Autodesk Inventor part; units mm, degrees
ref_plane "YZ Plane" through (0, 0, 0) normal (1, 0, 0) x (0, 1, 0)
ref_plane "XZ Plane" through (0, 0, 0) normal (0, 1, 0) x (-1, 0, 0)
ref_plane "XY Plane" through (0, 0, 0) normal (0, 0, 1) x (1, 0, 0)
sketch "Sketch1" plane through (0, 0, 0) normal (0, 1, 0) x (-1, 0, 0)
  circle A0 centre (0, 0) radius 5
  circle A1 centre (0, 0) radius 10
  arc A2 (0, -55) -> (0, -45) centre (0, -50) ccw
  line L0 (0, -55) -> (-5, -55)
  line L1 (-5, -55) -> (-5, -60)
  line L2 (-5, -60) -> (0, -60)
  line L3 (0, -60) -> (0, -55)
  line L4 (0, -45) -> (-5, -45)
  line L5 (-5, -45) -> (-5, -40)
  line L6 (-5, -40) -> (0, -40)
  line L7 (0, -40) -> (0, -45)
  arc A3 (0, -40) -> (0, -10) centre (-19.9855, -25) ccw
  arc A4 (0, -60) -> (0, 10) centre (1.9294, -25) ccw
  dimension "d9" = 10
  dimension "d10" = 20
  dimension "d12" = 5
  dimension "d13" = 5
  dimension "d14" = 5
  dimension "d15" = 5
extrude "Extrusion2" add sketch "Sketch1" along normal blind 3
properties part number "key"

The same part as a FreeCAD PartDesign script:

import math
import FreeCAD as App
import Part
import Sketcher

V = App.Vector

doc = App.newDocument("Part")
params = doc.addObject("Spreadsheet::Sheet", "Params")
for row, (alias, value) in enumerate([
    ("sketch1_diameter", "10 mm"),
    ("sketch1_radius", "10 mm"),
    ("pad1_length", "3 mm"),
], start=1):
    params.set(f"A{row}", alias)
    params.set(f"B{row}", "=" + value)
    params.setAlias(f"B{row}", alias)

body = doc.addObject("PartDesign::Body", "Body")

sketch1 = doc.addObject("Sketcher::SketchObject", "Sketch")
body.addObject(sketch1)
sketch1.AttachmentSupport = (doc.XZ_Plane, [""])
sketch1.MapMode = "FlatFace"
sketch1.addGeometry([
    Part.ArcOfCircle(Part.Circle(V(0, 0, 0), V(0, 0, 1), 10), math.radians(-90), math.radians(90)),
    Part.ArcOfCircle(Part.Circle(V(20, -25, 0), V(0, 0, 1), 25), math.radians(143), math.radians(217)),
    Part.LineSegment(V(0, -40, 0), V(5, -40, 0)),
    Part.LineSegment(V(5, -40, 0), V(5, -45, 0)),
    Part.LineSegment(V(5, -45, 0), V(0, -45, 0)),
    Part.ArcOfCircle(Part.Circle(V(0, -50, 0), V(0, 0, 1), 5), math.radians(90), math.radians(270)),
    Part.LineSegment(V(0, -55, 0), V(5, -55, 0)),
    Part.LineSegment(V(5, -55, 0), V(5, -60, 0)),
    Part.LineSegment(V(5, -60, 0), V(0, -60, 0)),
    Part.ArcOfCircle(Part.Circle(V(-2, -25, 0), V(0, 0, 1), 35), math.radians(87), math.radians(273)),
    Part.Circle(V(0, 0, 0), V(0, 0, 1), 5),
], False)
sketch1.addConstraint([
    Sketcher.Constraint("Coincident", 0, 1, 1, 1),
    Sketcher.Constraint("Coincident", 1, 2, 2, 1),
    Sketcher.Constraint("Coincident", 2, 2, 3, 1),
    Sketcher.Constraint("Coincident", 3, 2, 4, 1),
    Sketcher.Constraint("Tangent", 4, 2, 5, 1),
    Sketcher.Constraint("Tangent", 5, 2, 6, 1),
    Sketcher.Constraint("Coincident", 6, 2, 7, 1),
    Sketcher.Constraint("Coincident", 7, 2, 8, 1),
    Sketcher.Constraint("Coincident", 8, 2, 9, 2),
    Sketcher.Constraint("Coincident", 9, 1, 0, 2),
    Sketcher.Constraint("Horizontal", 2),
    Sketcher.Constraint("Vertical", 3),
    Sketcher.Constraint("Horizontal", 4),
    Sketcher.Constraint("Horizontal", 6),
    Sketcher.Constraint("Vertical", 7),
    Sketcher.Constraint("Horizontal", 8),
    Sketcher.Constraint("Coincident", 0, 3, -1, 1),
    Sketcher.Constraint("Coincident", 10, 3, -1, 1),
    Sketcher.Constraint("Equal", 5, 10),
    Sketcher.Constraint("PointOnObject", 5, 3, -2),
    Sketcher.Constraint("PointOnObject", 0, 1, -2),
    Sketcher.Constraint("PointOnObject", 1, 2, -2),
    Sketcher.Constraint("PointOnObject", 8, 2, -2),
    Sketcher.Constraint("PointOnObject", 9, 1, -2),
    Sketcher.Constraint("Horizontal", 1, 3, 9, 3),
    Sketcher.Constraint("Vertical", 3, 2, 6, 2),
    Sketcher.Constraint("Equal", 8, 3),
    Sketcher.Constraint("Equal", 3, 7),
    Sketcher.Constraint("Diameter", 10, 10.0),
    Sketcher.Constraint("Radius", 0, 10.0),
    Sketcher.Constraint("DistanceY", 3, 2, 9, 3, 20.0),
    Sketcher.Constraint("Radius", 1, 24.9884),
    Sketcher.Constraint("Radius", 9, 35.0531),
])
sketch1.setExpression("Constraints[28]", "Params.sketch1_diameter")
sketch1.setExpression("Constraints[29]", "Params.sketch1_radius")
pad1 = doc.addObject("PartDesign::Pad", "Pad")
body.addObject(pad1)
pad1.Profile = sketch1
pad1.setExpression("Length", "Params.pad1_length")
pad1.Reversed = True

doc.recompute()
